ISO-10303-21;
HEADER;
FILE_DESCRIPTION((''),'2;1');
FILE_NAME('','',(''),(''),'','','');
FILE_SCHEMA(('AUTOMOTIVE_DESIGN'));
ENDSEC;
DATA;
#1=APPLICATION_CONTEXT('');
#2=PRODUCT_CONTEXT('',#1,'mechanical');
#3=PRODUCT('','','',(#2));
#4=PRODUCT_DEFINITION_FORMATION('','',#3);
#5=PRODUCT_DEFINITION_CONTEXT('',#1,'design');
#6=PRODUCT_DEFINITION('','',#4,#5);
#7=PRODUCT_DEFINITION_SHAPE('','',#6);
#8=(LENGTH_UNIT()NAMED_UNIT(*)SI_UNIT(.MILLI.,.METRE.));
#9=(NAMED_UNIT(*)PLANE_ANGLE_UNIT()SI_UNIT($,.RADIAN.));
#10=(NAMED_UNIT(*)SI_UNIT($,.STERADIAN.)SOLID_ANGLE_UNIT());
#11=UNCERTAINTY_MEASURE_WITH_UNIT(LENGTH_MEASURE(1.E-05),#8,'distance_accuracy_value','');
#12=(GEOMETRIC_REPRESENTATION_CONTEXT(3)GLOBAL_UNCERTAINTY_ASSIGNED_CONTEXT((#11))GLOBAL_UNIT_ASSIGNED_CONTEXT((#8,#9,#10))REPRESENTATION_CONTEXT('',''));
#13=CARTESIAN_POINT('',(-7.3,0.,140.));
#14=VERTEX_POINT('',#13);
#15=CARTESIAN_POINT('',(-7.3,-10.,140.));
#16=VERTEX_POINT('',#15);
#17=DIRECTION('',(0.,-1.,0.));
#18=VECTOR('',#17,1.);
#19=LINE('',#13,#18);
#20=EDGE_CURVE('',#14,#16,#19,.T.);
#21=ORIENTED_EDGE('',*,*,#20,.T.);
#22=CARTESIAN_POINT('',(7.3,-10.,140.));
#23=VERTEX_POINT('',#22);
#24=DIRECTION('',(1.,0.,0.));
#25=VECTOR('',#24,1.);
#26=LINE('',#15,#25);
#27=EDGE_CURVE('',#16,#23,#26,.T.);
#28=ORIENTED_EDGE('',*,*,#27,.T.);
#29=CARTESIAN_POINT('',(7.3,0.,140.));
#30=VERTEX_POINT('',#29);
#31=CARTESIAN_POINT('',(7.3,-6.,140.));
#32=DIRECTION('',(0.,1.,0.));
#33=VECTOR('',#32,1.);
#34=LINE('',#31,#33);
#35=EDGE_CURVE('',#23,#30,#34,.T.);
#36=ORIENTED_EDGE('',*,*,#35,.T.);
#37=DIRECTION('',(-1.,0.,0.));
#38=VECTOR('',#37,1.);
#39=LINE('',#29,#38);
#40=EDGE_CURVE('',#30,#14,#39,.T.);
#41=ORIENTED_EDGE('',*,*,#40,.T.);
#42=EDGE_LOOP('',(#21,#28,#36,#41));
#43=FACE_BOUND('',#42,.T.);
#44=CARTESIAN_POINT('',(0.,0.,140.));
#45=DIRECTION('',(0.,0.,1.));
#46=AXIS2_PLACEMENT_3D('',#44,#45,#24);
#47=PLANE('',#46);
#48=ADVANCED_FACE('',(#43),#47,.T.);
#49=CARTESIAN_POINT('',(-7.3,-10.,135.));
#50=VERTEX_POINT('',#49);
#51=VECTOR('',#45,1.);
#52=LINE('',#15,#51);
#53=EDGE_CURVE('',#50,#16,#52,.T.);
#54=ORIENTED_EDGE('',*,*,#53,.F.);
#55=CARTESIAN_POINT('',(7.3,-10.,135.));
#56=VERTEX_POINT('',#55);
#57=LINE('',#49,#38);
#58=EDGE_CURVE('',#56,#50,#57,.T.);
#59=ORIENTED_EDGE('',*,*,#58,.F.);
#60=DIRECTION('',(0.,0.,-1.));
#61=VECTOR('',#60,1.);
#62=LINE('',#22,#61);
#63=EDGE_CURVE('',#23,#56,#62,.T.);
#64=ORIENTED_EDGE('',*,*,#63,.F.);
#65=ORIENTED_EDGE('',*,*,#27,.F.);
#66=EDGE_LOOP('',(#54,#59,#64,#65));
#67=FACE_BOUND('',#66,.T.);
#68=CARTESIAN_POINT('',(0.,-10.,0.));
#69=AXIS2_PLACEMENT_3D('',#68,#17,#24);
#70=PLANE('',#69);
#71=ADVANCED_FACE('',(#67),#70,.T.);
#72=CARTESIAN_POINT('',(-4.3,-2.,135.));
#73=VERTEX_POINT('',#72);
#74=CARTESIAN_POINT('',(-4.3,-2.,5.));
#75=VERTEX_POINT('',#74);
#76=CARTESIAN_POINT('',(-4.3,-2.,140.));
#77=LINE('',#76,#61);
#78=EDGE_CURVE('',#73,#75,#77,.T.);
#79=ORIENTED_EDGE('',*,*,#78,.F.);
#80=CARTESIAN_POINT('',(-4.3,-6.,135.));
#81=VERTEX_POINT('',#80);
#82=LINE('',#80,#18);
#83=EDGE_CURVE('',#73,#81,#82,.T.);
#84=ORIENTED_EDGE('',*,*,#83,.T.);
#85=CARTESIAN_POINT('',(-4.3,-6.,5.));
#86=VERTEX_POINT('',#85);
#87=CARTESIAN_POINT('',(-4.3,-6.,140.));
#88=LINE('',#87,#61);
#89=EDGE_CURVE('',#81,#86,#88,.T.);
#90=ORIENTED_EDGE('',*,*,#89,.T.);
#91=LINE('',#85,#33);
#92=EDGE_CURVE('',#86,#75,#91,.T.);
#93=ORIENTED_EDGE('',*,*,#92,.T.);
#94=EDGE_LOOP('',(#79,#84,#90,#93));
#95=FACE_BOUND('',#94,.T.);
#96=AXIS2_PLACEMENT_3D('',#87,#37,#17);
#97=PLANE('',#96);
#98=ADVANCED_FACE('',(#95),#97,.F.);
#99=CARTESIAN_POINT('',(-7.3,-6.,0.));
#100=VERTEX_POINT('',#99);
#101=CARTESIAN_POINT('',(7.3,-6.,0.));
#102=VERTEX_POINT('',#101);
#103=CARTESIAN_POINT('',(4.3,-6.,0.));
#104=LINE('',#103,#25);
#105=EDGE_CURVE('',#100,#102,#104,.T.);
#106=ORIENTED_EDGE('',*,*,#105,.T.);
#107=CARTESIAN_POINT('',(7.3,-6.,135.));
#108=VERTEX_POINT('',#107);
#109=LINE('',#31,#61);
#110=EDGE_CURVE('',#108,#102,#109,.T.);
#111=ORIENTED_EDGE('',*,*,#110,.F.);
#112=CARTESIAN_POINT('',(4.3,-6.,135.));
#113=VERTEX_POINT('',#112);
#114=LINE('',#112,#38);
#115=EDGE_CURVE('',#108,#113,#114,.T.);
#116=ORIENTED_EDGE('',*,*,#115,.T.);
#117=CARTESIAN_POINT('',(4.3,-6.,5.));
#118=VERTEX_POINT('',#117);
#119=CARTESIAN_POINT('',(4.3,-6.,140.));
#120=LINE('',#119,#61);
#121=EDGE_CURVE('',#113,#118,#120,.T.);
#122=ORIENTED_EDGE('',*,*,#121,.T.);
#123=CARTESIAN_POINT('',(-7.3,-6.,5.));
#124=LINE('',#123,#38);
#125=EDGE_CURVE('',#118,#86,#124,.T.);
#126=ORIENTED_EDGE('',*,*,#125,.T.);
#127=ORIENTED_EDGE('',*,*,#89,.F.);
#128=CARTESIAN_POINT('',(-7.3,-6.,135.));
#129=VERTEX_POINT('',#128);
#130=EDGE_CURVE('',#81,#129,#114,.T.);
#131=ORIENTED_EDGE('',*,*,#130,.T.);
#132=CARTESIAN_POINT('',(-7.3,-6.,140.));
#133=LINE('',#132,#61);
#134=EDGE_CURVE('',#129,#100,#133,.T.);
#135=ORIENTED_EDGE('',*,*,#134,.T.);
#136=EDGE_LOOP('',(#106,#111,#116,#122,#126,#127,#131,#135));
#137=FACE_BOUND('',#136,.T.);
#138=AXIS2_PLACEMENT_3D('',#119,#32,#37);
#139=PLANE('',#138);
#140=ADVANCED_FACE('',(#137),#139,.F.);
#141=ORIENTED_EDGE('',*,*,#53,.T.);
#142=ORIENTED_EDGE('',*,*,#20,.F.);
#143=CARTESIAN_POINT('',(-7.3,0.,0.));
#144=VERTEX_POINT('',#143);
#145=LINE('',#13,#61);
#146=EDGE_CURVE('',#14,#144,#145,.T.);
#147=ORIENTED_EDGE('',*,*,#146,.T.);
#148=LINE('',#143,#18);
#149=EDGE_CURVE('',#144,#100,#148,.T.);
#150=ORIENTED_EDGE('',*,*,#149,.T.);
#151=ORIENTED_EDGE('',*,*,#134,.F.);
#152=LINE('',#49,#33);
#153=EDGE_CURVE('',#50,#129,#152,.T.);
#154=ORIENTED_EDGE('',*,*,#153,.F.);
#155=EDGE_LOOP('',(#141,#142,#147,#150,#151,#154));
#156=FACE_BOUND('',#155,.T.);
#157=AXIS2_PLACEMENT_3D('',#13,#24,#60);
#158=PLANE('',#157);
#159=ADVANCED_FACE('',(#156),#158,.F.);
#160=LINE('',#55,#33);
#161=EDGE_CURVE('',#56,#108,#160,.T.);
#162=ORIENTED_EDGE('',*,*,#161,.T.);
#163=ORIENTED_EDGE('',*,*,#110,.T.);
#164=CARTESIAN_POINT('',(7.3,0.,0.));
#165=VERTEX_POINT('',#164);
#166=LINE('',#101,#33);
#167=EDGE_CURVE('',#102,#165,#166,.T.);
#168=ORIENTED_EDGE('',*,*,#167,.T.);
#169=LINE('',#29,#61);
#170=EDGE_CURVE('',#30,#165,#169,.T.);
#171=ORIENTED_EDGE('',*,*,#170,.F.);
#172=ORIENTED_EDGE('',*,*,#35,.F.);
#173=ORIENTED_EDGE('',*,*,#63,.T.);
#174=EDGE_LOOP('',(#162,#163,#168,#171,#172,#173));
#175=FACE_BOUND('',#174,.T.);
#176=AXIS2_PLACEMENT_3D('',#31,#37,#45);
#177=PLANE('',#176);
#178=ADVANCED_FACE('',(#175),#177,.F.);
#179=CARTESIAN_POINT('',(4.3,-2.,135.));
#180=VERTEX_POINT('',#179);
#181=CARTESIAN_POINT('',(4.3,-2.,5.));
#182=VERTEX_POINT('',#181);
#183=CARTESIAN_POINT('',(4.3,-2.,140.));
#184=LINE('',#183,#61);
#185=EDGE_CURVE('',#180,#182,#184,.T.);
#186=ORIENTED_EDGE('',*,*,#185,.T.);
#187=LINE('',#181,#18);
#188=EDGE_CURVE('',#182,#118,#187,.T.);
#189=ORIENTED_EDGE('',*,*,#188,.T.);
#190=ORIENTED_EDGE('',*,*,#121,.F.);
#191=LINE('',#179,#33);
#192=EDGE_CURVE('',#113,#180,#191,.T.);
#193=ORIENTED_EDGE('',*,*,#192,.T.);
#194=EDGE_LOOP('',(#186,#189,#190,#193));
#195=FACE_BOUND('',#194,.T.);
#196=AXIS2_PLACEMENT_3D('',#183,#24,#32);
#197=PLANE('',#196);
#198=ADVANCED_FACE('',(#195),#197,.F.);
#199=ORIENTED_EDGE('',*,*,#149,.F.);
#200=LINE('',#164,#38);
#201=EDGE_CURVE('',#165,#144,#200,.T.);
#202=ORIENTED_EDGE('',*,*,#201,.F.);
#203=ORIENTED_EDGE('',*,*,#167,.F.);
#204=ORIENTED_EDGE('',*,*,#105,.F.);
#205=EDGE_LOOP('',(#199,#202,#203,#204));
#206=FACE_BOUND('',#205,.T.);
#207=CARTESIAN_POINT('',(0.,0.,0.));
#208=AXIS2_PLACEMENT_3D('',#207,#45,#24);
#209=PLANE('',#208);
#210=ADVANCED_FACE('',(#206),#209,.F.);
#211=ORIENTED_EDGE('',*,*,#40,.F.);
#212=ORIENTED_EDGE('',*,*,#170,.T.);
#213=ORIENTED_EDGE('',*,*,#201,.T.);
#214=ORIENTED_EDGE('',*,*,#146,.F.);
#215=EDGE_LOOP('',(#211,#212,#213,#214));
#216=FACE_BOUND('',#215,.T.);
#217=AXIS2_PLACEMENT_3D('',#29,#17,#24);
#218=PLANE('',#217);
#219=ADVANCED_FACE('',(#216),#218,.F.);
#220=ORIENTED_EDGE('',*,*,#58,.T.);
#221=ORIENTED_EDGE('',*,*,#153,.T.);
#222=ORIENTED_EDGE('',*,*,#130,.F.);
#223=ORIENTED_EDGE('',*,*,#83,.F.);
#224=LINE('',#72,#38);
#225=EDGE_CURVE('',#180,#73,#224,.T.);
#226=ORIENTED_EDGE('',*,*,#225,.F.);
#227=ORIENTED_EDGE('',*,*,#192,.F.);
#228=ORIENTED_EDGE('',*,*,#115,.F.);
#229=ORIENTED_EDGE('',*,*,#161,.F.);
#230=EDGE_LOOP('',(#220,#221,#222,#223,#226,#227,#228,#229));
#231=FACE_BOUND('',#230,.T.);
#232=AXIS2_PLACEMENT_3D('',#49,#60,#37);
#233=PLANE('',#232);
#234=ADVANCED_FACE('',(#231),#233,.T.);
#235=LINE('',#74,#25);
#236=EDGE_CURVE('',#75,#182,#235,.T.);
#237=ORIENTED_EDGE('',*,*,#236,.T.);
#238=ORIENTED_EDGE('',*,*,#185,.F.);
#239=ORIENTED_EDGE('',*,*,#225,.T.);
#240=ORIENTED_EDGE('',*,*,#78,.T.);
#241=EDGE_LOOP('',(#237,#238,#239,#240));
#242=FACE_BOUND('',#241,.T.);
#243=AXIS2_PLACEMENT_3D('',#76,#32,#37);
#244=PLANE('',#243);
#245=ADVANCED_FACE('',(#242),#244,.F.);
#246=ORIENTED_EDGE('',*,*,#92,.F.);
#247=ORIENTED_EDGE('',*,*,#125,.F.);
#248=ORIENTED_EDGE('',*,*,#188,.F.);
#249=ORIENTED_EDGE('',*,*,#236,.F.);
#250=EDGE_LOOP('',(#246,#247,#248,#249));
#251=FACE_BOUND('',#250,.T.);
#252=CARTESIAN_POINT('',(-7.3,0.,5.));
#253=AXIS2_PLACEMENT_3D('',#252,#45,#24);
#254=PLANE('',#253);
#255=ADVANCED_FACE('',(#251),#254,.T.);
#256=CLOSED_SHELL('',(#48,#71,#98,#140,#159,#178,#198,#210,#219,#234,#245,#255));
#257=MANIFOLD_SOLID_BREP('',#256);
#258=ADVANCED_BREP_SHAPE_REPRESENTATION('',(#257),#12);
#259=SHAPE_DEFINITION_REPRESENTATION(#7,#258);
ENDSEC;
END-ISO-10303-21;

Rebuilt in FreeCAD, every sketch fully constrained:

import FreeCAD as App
import Part
import Sketcher

V = App.Vector


def add_polygon(sketch, points):
    """Adds a closed chain of lines whose ends are joined by coincident constraints."""
    first, n = sketch.GeometryCount, len(points)
    for a, b in zip(points, points[1:] + points[:1]):
        sketch.addGeometry(Part.LineSegment(App.Vector(*a, 0), App.Vector(*b, 0)), False)
    for i in range(n):
        sketch.addConstraint(Sketcher.Constraint("Coincident", first + i, 2, first + (i + 1) % n, 1))

doc = App.newDocument("Part")
body = doc.addObject("PartDesign::Body", "Body")

# Sketch on XY plane
sketch1 = body.newObject("Sketcher::SketchObject", "Sketch")
sketch1.AttachmentSupport = (doc.getObject("XY_Plane"), [""])
sketch1.MapMode = "FlatFace"
add_polygon(sketch1, [(-7.3, 0), (-7.3, -6), (-4.3, -6), (-4.3, -2), (4.3, -2), (4.3, -6), (7.3, -6), (7.3, 0)])  # lines 0-7
sketch1.addConstraint([
    Sketcher.Constraint("Vertical", 0),
    Sketcher.Constraint("Horizontal", 1),
    Sketcher.Constraint("Vertical", 2),
    Sketcher.Constraint("Horizontal", 3),
    Sketcher.Constraint("Vertical", 4),
    Sketcher.Constraint("Horizontal", 5),
    Sketcher.Constraint("Vertical", 6),
    Sketcher.Constraint("Horizontal", 7),
    Sketcher.Constraint("Symmetric", 6, 2, 7, 2, -1, 1),
    Sketcher.Constraint("Symmetric", 1, 2, 4, 2, -2),
    Sketcher.Constraint("DistanceX", 1, 1, 1, 2, 3.0),
    Sketcher.Constraint("DistanceY", 0, 2, 0, 1, 6.0),
    Sketcher.Constraint("DistanceY", 2, 1, 2, 2, 4.0),
    Sketcher.Constraint("DistanceX", 3, 1, 3, 2, 8.6),
])
pad1 = body.newObject("PartDesign::Pad", "Pad")
pad1.Profile = sketch1
pad1.Length = 140

# Sketch on XZ plane
sketch2 = body.newObject("Sketcher::SketchObject", "Sketch001")
sketch2.AttachmentSupport = (doc.getObject("XZ_Plane"), [""])
sketch2.MapMode = "FlatFace"
sketch2.AttachmentOffset = App.Placement(V(0, 0, 6), App.Rotation())
add_polygon(sketch2, [(-7, 5), (-7, 0), (7, 0), (7, 5)])  # lines 0-3
sketch2.addConstraint([
    Sketcher.Constraint("Vertical", 0),
    Sketcher.Constraint("Horizontal", 1),
    Sketcher.Constraint("Vertical", 2),
    Sketcher.Constraint("Horizontal", 3),
    Sketcher.Constraint("Symmetric", 0, 2, 1, 2, -1, 1),
    Sketcher.Constraint("DistanceY", 0, 2, 0, 1, 5.0),
    Sketcher.Constraint("DistanceX", 1, 1, 1, 2, 14.6),
])
pad2 = body.newObject("PartDesign::Pad", "Pad001")
pad2.Profile = sketch2
pad2.Type = "UpToFirst"
pad2.Reversed = True

# Sketch on XZ plane
sketch3 = body.newObject("Sketcher::SketchObject", "Sketch002")
sketch3.AttachmentSupport = (doc.getObject("XZ_Plane"), [""])
sketch3.MapMode = "FlatFace"
add_polygon(sketch3, [(-7, 135), (-7, 140), (7, 140), (7, 135)])  # lines 0-3
sketch3.addConstraint([
    Sketcher.Constraint("Vertical", 0),
    Sketcher.Constraint("Horizontal", 1),
    Sketcher.Constraint("Vertical", 2),
    Sketcher.Constraint("Horizontal", 3),
    Sketcher.Constraint("DistanceY", 0, 1, 0, 2, 5.0),
    Sketcher.Constraint("DistanceX", 1, 1, 1, 2, 14.6),
    Sketcher.Constraint("DistanceY", -1, 1, 0, 2, 140.0),
    Sketcher.Constraint("DistanceX", 0, 2, -1, 1, 7.3),
])
pad3 = body.newObject("PartDesign::Pad", "Pad002")
pad3.Profile = sketch3
pad3.Length = 10

doc.recompute()
